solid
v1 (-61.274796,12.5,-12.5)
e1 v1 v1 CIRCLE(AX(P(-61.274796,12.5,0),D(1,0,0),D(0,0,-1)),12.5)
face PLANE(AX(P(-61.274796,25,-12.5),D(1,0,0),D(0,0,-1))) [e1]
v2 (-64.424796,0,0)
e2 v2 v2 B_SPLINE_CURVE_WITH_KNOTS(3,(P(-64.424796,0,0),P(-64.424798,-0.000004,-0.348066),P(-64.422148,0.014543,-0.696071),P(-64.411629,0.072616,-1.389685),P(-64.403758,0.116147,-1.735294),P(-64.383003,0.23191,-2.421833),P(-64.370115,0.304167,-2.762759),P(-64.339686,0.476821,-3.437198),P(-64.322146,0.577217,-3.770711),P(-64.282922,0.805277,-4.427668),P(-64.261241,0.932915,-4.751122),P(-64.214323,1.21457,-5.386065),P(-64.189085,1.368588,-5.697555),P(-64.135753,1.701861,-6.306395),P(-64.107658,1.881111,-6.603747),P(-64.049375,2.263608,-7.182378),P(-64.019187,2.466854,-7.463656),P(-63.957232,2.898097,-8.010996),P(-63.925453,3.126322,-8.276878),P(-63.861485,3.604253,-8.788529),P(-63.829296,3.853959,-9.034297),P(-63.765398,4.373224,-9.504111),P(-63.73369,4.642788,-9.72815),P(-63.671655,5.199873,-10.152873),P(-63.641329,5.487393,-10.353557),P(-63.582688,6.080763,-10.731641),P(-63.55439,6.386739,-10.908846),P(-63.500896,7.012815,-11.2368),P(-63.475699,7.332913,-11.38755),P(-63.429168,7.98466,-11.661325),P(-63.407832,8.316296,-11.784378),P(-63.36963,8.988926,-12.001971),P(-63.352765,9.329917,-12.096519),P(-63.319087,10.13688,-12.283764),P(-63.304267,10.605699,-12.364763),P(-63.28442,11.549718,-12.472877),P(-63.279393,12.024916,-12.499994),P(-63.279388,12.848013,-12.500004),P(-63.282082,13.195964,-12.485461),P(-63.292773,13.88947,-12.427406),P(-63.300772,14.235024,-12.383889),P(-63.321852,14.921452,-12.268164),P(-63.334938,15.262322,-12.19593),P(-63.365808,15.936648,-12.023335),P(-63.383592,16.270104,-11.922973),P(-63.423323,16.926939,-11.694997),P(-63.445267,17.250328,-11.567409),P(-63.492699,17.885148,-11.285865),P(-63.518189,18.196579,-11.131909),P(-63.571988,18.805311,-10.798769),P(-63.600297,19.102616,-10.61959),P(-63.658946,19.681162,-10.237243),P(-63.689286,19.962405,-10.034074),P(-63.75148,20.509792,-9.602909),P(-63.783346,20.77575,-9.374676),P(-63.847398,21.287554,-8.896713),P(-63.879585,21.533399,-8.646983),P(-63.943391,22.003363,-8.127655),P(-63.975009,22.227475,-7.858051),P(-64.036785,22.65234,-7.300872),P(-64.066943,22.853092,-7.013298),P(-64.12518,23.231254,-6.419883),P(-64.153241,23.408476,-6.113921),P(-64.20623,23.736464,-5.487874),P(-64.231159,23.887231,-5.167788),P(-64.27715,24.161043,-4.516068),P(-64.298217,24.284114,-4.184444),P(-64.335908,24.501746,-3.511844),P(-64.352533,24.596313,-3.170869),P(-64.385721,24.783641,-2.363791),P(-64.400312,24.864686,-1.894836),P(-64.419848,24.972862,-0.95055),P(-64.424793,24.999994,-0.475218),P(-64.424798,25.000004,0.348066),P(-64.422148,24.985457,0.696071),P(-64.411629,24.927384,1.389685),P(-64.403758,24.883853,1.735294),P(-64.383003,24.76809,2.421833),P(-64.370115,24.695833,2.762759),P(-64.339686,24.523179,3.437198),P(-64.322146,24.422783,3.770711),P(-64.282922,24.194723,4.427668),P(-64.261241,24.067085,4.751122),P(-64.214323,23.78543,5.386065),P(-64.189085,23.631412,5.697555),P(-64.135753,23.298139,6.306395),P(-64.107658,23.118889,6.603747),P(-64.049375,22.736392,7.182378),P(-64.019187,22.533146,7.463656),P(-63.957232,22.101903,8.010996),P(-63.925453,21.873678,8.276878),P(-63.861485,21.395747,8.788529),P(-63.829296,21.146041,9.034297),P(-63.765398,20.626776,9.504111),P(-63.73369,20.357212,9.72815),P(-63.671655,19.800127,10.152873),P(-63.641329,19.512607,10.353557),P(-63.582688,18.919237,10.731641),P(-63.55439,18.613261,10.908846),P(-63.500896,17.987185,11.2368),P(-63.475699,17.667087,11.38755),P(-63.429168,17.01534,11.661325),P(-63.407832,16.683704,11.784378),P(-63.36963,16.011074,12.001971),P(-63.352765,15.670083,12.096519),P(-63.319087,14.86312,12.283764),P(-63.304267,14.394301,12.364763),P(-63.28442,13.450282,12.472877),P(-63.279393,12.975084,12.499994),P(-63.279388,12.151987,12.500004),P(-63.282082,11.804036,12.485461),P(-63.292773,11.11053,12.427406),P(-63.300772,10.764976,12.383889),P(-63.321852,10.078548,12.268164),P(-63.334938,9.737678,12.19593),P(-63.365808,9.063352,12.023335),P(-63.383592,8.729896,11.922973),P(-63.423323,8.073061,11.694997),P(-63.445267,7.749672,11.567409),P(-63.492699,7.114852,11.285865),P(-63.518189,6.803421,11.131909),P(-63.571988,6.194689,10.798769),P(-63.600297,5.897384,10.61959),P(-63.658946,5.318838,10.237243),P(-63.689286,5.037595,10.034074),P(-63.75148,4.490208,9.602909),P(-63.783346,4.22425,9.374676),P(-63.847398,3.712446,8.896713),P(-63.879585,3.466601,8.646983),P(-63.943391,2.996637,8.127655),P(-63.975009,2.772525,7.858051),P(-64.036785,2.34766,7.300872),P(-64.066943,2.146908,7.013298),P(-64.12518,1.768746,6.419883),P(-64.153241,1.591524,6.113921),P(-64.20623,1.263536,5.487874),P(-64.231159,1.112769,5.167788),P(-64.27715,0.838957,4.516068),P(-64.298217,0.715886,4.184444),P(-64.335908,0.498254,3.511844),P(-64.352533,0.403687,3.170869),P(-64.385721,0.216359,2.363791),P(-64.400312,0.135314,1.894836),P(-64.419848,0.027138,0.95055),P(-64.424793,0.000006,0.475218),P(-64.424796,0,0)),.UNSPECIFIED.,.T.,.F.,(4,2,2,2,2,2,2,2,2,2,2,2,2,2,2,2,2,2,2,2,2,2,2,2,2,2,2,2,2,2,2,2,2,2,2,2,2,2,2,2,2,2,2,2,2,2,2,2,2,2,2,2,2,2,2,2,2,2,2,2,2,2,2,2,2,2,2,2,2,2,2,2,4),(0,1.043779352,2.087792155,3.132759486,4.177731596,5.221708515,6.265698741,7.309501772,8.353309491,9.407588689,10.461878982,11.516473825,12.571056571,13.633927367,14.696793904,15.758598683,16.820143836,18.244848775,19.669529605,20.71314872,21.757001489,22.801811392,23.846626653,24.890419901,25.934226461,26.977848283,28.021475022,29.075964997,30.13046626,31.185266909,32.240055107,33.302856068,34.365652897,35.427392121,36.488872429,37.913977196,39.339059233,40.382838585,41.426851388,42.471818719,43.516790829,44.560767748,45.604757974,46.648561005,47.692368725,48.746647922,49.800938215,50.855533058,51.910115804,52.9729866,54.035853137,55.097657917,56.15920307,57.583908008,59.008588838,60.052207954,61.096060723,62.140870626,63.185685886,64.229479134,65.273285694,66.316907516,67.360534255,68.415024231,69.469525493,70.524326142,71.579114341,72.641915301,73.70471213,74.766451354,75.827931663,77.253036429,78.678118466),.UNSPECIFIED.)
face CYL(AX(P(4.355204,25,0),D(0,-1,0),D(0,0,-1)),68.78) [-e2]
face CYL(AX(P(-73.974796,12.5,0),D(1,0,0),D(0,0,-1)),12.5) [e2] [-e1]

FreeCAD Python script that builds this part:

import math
import FreeCAD as App
import Part
import Sketcher
Q = App.Units.Quantity

doc = App.newDocument("Part")
body = doc.addObject("PartDesign::Body", "Body")

# Sketch on XZ plane
sketch1 = body.newObject("Sketcher::SketchObject", "Sketch")
sketch1.AttachmentSupport = (doc.getObject("XZ_Plane"), [""])
sketch1.MapMode = "FlatFace"
sketch1.addGeometry(Part.LineSegment(App.Vector(-61.3, -12.5, 0), App.Vector(-63.3, -12.5, 0)), False)
sketch1.addGeometry(Part.ArcOfCircle(Part.Circle(App.Vector(4.4, 0, 0), App.Vector(0, 0, 1), 68.8), math.radians(170), math.radians(190)), False)
sketch1.addGeometry(Part.LineSegment(App.Vector(-63.3, 12.5, 0), App.Vector(-61.3, 12.5, 0)), False)
sketch1.addGeometry(Part.LineSegment(App.Vector(-61.3, 12.5, 0), App.Vector(-61.3, -12.5, 0)), False)
sketch1.addConstraint(Sketcher.Constraint("Coincident", 0, 2, 1, 2))
sketch1.addConstraint(Sketcher.Constraint("Coincident", 1, 1, 2, 1))
sketch1.addConstraint(Sketcher.Constraint("Coincident", 2, 2, 3, 1))
sketch1.addConstraint(Sketcher.Constraint("Coincident", 3, 2, 0, 1))
sketch1.addConstraint(Sketcher.Constraint("Horizontal", 0))
sketch1.addConstraint(Sketcher.Constraint("Horizontal", 2))
sketch1.addConstraint(Sketcher.Constraint("Vertical", 3))
sketch1.addConstraint(Sketcher.Constraint("Symmetric", 0, 2, 1, 1, -1))
sketch1.addConstraint(Sketcher.Constraint("DistanceY", 3, 2, 3, 1, Q("25 mm")))
sketch1.addConstraint(Sketcher.Constraint("Radius", 1, Q("68.78 mm")))
sketch1.addConstraint(Sketcher.Constraint("DistanceX", 2, 2, 1, 3, Q("65.63 mm")))
sketch1.addConstraint(Sketcher.Constraint("DistanceX", 0, 2, -1, 1, Q("63.27939 mm")))
pad1 = body.newObject("PartDesign::Pad", "Pad")
pad1.Profile = sketch1
pad1.Length = 25
pad1.Reversed = True

# Sketch on YZ plane
sketch2 = body.newObject("Sketcher::SketchObject", "Sketch001")
sketch2.AttachmentSupport = (doc.getObject("YZ_Plane"), [""])
sketch2.MapMode = "FlatFace"
sketch2.AttachmentOffset = App.Placement(App.Vector(0, 0, -61.274796), App.Rotation())
sketch2.addGeometry(Part.LineSegment(App.Vector(25, 12, 0), App.Vector(12, 12, 0)), False)
sketch2.addGeometry(Part.ArcOfCircle(Part.Circle(App.Vector(13, 0, 0), App.Vector(0, 0, 1), 12), math.radians(0), math.radians(90)), False)
sketch2.addGeometry(Part.LineSegment(App.Vector(25, 0, 0), App.Vector(25, 12, 0)), False)
sketch2.addGeometry(Part.ArcOfCircle(Part.Circle(App.Vector(13, 0, 0), App.Vector(0, 0, 1), 12), math.radians(-90), math.radians(0)), False)
sketch2.addGeometry(Part.LineSegment(App.Vector(12, -12, 0), App.Vector(25, -12, 0)), False)
sketch2.addGeometry(Part.LineSegment(App.Vector(25, -12, 0), App.Vector(25, 0, 0)), False)
sketch2.addGeometry(Part.ArcOfCircle(Part.Circle(App.Vector(12, 0, 0), App.Vector(0, 0, 1), 12), math.radians(180), math.radians(270)), False)
sketch2.addGeometry(Part.LineSegment(App.Vector(0, 0, 0), App.Vector(0, -12, 0)), False)
sketch2.addGeometry(Part.LineSegment(App.Vector(0, -12, 0), App.Vector(12, -12, 0)), False)
sketch2.addGeometry(Part.LineSegment(App.Vector(12, 12, 0), App.Vector(0, 12, 0)), False)
sketch2.addGeometry(Part.LineSegment(App.Vector(0, 12, 0), App.Vector(0, 0, 0)), False)
sketch2.addGeometry(Part.ArcOfCircle(Part.Circle(App.Vector(12, 0, 0), App.Vector(0, 0, 1), 12), math.radians(90), math.radians(180)), False)
sketch2.addConstraint(Sketcher.Constraint("Tangent", 0, 2, 1, 2))
sketch2.addConstraint(Sketcher.Constraint("Tangent", 1, 1, 2, 1))
sketch2.addConstraint(Sketcher.Constraint("Coincident", 2, 2, 0, 1))
sketch2.addConstraint(Sketcher.Constraint("Tangent", 3, 1, 4, 1))
sketch2.addConstraint(Sketcher.Constraint("Coincident", 4, 2, 5, 1))
sketch2.addConstraint(Sketcher.Constraint("Tangent", 5, 2, 3, 2))
sketch2.addConstraint(Sketcher.Constraint("Tangent", 6, 1, 7, 1))
sketch2.addConstraint(Sketcher.Constraint("Coincident", 7, 2, 8, 1))
sketch2.addConstraint(Sketcher.Constraint("Tangent", 8, 2, 6, 2))
sketch2.addConstraint(Sketcher.Constraint("Coincident", 9, 2, 10, 1))
sketch2.addConstraint(Sketcher.Constraint("Tangent", 10, 2, 11, 2))
sketch2.addConstraint(Sketcher.Constraint("Tangent", 11, 1, 9, 1))
sketch2.addConstraint(Sketcher.Constraint("Horizontal", 0))
sketch2.addConstraint(Sketcher.Constraint("Vertical", 2))
sketch2.addConstraint(Sketcher.Constraint("Horizontal", 4))
sketch2.addConstraint(Sketcher.Constraint("Vertical", 5))
sketch2.addConstraint(Sketcher.Constraint("Vertical", 7))
sketch2.addConstraint(Sketcher.Constraint("Horizontal", 8))
sketch2.addConstraint(Sketcher.Constraint("Horizontal", 9))
sketch2.addConstraint(Sketcher.Constraint("Vertical", 10))
sketch2.addConstraint(Sketcher.Constraint("Coincident", 6, 1, -1, 1))
sketch2.addConstraint(Sketcher.Constraint("Coincident", 10, 2, -1, 1))
sketch2.addConstraint(Sketcher.Constraint("Coincident", 3, 3, 1, 3))
sketch2.addConstraint(Sketcher.Constraint("Coincident", 6, 3, 1, 3))
sketch2.addConstraint(Sketcher.Constraint("Coincident", 11, 1, 0, 2))
sketch2.addConstraint(Sketcher.Constraint("Equal", 1, 3))
sketch2.addConstraint(Sketcher.Constraint("Radius", 1, Q("12.5 mm")))
pocket1 = body.newObject("PartDesign::Pocket", "Pocket")
pocket1.Profile = sketch2
pocket1.Length = 12.7

doc.recompute()
